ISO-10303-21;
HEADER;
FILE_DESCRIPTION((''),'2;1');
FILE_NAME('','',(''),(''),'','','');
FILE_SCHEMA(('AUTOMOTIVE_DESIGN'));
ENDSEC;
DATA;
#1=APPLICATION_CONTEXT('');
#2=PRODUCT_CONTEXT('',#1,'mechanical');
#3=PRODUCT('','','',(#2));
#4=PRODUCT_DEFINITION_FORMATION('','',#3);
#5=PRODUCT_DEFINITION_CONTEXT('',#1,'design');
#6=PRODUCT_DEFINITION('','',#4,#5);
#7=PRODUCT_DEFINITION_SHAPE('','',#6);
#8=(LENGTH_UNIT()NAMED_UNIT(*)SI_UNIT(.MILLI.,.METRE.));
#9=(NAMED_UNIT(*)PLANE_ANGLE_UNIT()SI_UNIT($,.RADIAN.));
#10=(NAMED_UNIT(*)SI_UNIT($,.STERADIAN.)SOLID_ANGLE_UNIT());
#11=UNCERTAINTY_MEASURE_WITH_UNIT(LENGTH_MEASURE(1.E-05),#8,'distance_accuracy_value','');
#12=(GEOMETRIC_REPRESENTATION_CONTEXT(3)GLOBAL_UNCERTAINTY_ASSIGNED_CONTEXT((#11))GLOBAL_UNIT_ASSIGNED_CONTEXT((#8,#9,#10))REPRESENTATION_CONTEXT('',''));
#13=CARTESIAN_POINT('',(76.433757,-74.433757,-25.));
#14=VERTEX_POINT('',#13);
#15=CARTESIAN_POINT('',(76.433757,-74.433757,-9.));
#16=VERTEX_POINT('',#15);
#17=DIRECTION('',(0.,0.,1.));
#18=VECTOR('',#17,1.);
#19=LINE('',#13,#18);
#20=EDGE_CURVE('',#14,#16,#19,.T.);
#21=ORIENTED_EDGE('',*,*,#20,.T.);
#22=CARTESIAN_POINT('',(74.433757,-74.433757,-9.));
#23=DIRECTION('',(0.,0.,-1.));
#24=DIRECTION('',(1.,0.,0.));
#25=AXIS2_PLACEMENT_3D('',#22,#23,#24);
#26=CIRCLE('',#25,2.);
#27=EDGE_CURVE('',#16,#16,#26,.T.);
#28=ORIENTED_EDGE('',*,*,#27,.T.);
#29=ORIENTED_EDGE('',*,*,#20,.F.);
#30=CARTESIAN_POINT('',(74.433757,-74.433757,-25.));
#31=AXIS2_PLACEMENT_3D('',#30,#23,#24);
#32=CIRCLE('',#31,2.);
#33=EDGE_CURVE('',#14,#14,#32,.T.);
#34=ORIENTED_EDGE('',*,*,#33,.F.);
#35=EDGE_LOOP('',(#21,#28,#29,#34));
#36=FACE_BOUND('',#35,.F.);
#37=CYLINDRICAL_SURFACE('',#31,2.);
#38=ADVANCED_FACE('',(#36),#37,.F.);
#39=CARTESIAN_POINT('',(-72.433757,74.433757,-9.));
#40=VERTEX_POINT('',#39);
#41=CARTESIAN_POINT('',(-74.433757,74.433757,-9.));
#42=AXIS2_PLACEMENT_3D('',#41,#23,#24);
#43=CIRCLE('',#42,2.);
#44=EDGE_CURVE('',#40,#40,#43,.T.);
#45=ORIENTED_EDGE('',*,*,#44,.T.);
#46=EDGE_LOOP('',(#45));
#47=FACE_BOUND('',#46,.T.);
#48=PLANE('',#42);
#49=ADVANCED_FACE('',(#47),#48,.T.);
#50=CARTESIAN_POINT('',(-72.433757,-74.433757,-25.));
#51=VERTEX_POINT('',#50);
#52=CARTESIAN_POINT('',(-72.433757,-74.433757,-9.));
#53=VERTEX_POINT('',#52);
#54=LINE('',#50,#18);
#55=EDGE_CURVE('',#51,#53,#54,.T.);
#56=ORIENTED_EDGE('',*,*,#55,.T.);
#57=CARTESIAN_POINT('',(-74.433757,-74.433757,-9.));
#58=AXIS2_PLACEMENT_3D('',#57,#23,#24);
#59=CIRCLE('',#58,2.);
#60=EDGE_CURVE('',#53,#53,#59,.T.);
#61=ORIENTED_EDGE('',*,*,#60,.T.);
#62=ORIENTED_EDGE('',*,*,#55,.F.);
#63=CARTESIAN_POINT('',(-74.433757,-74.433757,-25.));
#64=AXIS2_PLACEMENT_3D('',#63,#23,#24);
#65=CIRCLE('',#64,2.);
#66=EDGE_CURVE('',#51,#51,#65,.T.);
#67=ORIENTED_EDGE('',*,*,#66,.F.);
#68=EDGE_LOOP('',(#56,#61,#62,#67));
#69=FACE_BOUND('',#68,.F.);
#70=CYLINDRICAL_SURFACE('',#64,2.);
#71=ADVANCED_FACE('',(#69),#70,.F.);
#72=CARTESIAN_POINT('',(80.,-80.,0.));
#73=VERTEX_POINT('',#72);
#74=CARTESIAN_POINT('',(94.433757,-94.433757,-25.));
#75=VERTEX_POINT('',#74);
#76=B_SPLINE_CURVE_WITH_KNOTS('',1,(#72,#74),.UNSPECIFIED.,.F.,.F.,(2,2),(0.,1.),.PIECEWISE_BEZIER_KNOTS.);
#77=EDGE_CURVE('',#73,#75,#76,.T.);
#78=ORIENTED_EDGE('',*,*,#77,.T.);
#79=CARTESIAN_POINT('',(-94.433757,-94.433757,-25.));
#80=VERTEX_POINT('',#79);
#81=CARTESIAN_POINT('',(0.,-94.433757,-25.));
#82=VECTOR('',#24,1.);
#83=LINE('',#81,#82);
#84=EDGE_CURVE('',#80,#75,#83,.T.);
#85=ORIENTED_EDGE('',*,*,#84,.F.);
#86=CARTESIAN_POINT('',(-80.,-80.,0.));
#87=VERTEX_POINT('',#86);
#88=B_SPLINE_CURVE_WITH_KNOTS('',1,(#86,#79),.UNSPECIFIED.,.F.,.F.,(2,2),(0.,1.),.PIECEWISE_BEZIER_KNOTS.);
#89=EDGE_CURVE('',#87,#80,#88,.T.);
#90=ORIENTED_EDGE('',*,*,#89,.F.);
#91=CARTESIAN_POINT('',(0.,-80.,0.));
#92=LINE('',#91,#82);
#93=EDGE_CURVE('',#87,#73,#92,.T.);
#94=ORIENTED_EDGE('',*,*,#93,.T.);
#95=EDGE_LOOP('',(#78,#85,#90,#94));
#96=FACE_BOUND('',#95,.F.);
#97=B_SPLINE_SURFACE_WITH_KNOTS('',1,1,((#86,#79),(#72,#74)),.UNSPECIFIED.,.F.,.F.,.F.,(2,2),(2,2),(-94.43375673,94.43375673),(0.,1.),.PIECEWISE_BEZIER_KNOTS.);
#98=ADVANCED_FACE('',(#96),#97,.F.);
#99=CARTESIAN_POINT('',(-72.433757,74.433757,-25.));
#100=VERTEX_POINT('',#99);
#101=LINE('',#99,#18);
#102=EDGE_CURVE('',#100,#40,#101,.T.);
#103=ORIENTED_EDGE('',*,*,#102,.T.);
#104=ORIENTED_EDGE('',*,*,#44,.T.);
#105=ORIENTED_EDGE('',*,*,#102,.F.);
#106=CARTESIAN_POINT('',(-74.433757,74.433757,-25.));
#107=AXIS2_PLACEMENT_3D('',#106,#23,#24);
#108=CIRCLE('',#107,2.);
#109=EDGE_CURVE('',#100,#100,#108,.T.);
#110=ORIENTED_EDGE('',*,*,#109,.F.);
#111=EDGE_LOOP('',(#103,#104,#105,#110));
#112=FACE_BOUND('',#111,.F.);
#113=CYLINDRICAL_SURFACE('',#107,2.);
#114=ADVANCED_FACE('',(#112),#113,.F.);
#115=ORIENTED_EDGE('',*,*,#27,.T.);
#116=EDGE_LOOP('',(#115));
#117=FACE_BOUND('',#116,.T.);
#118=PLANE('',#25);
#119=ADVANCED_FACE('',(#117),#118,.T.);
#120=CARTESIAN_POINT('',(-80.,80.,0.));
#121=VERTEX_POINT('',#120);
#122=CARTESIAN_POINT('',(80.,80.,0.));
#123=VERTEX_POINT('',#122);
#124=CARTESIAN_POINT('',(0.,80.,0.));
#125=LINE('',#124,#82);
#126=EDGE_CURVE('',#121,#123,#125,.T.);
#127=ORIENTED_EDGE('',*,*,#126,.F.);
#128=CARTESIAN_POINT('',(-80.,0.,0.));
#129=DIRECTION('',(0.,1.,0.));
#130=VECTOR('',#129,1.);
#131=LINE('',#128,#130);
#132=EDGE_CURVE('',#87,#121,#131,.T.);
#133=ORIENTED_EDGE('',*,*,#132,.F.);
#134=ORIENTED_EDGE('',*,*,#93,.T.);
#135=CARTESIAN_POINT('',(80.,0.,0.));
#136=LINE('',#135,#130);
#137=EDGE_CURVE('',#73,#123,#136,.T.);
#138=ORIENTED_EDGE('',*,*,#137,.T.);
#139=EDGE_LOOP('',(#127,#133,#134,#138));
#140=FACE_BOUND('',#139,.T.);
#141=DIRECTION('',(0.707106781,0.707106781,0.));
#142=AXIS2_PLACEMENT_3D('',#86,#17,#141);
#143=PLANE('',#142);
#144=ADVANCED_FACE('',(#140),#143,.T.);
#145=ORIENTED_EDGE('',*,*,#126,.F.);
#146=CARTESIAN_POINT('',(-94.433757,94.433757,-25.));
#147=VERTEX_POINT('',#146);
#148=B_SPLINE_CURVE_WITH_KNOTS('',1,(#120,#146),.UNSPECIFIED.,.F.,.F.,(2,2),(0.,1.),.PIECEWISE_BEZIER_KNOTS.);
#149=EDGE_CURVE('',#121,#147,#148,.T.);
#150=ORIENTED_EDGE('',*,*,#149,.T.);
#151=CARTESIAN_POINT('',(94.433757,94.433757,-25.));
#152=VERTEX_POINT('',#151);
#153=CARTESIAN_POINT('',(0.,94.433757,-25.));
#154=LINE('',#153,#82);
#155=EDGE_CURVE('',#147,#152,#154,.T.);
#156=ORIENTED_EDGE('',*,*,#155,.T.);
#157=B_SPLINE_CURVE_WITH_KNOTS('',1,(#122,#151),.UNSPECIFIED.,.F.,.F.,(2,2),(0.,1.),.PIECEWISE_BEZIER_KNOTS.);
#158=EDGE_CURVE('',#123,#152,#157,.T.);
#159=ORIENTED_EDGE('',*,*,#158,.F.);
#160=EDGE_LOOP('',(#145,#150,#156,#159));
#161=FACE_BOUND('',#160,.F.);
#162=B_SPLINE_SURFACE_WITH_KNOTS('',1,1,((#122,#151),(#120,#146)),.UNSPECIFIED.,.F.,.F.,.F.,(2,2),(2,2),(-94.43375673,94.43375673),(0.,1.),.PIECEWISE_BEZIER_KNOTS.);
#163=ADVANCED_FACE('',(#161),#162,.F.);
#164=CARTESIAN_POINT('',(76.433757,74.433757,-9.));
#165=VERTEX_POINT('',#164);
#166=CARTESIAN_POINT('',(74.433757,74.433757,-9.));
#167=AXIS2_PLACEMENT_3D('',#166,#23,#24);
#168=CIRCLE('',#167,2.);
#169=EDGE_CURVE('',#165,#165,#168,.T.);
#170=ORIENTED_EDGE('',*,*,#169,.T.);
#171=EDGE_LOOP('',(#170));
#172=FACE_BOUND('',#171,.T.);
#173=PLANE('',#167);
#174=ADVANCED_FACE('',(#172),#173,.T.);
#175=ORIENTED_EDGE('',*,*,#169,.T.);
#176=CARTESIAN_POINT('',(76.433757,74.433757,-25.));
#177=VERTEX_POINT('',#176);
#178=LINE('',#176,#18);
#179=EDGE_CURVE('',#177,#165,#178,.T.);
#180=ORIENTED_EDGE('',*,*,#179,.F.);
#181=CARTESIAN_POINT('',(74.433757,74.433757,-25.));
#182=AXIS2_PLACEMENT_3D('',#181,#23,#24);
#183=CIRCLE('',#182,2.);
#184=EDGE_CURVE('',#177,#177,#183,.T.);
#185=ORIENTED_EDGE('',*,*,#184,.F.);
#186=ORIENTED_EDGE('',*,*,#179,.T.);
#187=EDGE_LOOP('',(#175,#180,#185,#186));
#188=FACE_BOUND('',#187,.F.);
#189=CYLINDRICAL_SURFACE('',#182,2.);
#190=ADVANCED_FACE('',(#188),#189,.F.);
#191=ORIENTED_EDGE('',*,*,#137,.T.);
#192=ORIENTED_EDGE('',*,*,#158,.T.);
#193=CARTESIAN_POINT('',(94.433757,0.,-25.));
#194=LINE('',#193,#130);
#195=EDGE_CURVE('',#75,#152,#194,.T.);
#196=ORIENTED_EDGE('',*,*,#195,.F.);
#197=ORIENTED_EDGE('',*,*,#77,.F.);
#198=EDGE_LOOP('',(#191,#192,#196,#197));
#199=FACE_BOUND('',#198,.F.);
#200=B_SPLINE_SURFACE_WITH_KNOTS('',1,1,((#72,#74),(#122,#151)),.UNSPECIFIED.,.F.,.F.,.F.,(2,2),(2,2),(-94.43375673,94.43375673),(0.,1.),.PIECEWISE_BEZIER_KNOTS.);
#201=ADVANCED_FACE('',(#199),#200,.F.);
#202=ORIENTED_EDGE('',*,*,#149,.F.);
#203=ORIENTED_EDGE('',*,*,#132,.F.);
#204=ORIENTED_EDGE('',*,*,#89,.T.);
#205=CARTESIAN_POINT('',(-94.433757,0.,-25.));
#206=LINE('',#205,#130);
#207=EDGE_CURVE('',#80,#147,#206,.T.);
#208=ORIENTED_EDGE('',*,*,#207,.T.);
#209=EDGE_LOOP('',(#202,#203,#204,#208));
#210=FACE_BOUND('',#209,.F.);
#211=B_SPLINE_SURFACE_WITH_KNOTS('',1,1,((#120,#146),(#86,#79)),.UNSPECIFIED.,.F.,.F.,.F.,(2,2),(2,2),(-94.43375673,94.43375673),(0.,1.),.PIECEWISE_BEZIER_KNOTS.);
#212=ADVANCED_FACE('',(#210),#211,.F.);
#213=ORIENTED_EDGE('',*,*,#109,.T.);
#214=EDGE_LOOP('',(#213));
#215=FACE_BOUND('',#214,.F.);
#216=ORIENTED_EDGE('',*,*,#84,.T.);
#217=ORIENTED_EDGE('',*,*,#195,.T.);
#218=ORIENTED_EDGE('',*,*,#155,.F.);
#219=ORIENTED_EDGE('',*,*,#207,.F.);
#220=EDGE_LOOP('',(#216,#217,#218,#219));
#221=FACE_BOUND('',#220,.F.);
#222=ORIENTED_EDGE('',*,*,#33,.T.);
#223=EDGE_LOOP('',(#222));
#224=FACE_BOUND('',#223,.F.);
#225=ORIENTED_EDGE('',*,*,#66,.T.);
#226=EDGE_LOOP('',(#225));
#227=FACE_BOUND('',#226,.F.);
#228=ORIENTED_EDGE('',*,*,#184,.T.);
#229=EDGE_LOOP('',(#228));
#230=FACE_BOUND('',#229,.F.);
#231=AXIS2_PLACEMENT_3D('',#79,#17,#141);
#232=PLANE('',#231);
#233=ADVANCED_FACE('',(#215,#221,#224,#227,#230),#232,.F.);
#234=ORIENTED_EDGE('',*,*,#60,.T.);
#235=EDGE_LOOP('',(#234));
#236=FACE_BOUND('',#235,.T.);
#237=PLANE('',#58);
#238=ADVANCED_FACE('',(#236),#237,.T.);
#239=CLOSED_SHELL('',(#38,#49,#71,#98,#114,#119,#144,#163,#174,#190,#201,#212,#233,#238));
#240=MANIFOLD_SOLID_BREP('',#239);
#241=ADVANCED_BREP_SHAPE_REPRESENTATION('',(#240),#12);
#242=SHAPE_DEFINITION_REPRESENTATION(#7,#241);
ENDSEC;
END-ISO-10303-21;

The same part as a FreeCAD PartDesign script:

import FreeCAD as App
import Part
import Sketcher
Q = App.Units.Quantity


def add_polygon(sketch, points):
    """Adds a closed chain of lines whose ends are joined by coincident constraints."""
    first, n = sketch.GeometryCount, len(points)
    for a, b in zip(points, points[1:] + points[:1]):
        sketch.addGeometry(Part.LineSegment(App.Vector(*a, 0), App.Vector(*b, 0)), False)
    for i in range(n):
        sketch.addConstraint(Sketcher.Constraint("Coincident", first + i, 2, first + (i + 1) % n, 1))

doc = App.newDocument("Part")
body = doc.addObject("PartDesign::Body", "Body")

# Sketch on XY plane
sketch1 = doc.addObject("Sketcher::SketchObject", "Sketch")
body.addObject(sketch1)
sketch1.AttachmentSupport = (doc.XY_Plane, [""])
sketch1.MapMode = "FlatFace"
add_polygon(sketch1, [(-80, 80), (-80, -80), (80, -80), (80, 80)])  # lines 0-3
sketch1.addConstraint([
    Sketcher.Constraint("Vertical", 0),
    Sketcher.Constraint("Horizontal", 1),
    Sketcher.Constraint("Vertical", 2),
    Sketcher.Constraint("Horizontal", 3),
    Sketcher.Constraint("Symmetric", 0, 2, 2, 2, -1, 1),
    Sketcher.Constraint("Equal", 3, 0),
    Sketcher.Constraint("DistanceX", 1, 1, 1, 2, Q("160 mm")),
])
pad1 = doc.addObject("PartDesign::Pad", "Pad")
body.addObject(pad1)
pad1.Profile = sketch1
pad1.Length = 25
pad1.Reversed = True
pad1.TaperAngle = 30

# Sketch on XY plane
sketch2 = doc.addObject("Sketcher::SketchObject", "Sketch001")
body.addObject(sketch2)
sketch2.AttachmentSupport = (doc.XY_Plane, [""])
sketch2.MapMode = "FlatFace"
sketch2.AttachmentOffset = App.Placement(App.Vector(0, 0, -25), App.Rotation())
sketch2.addGeometry([
    Part.Circle(App.Vector(-74.433757, 74.433757, 0), App.Vector(0, 0, 1), 2),
    Part.Circle(App.Vector(-74.433757, -74.433757, 0), App.Vector(0, 0, 1), 2),
    Part.Circle(App.Vector(74.433757, -74.433757, 0), App.Vector(0, 0, 1), 2),
    Part.Circle(App.Vector(74.433757, 74.433757, 0), App.Vector(0, 0, 1), 2),
], False)
sketch2.addConstraint([
    Sketcher.Constraint("Equal", 0, 1),
    Sketcher.Constraint("Equal", 1, 2),
    Sketcher.Constraint("Equal", 2, 3),
    Sketcher.Constraint("Symmetric", 0, 3, 2, 3, -1, 1),
    Sketcher.Constraint("Symmetric", 1, 3, 3, 3, -1, 1),
    Sketcher.Constraint("Symmetric", 1, 3, 2, 3, -2),
    Sketcher.Constraint("Diameter", 0, Q("4 mm")),
    Sketcher.Constraint("DistanceX", 0, 3, -1, 1, Q("74.433757 mm")),
    Sketcher.Constraint("DistanceY", -1, 1, 0, 3, Q("74.433757 mm")),
])
pocket1 = doc.addObject("PartDesign::Pocket", "Pocket")
body.addObject(pocket1)
pocket1.Profile = sketch2
pocket1.Length = 16
pocket1.Reversed = True

doc.recompute()
